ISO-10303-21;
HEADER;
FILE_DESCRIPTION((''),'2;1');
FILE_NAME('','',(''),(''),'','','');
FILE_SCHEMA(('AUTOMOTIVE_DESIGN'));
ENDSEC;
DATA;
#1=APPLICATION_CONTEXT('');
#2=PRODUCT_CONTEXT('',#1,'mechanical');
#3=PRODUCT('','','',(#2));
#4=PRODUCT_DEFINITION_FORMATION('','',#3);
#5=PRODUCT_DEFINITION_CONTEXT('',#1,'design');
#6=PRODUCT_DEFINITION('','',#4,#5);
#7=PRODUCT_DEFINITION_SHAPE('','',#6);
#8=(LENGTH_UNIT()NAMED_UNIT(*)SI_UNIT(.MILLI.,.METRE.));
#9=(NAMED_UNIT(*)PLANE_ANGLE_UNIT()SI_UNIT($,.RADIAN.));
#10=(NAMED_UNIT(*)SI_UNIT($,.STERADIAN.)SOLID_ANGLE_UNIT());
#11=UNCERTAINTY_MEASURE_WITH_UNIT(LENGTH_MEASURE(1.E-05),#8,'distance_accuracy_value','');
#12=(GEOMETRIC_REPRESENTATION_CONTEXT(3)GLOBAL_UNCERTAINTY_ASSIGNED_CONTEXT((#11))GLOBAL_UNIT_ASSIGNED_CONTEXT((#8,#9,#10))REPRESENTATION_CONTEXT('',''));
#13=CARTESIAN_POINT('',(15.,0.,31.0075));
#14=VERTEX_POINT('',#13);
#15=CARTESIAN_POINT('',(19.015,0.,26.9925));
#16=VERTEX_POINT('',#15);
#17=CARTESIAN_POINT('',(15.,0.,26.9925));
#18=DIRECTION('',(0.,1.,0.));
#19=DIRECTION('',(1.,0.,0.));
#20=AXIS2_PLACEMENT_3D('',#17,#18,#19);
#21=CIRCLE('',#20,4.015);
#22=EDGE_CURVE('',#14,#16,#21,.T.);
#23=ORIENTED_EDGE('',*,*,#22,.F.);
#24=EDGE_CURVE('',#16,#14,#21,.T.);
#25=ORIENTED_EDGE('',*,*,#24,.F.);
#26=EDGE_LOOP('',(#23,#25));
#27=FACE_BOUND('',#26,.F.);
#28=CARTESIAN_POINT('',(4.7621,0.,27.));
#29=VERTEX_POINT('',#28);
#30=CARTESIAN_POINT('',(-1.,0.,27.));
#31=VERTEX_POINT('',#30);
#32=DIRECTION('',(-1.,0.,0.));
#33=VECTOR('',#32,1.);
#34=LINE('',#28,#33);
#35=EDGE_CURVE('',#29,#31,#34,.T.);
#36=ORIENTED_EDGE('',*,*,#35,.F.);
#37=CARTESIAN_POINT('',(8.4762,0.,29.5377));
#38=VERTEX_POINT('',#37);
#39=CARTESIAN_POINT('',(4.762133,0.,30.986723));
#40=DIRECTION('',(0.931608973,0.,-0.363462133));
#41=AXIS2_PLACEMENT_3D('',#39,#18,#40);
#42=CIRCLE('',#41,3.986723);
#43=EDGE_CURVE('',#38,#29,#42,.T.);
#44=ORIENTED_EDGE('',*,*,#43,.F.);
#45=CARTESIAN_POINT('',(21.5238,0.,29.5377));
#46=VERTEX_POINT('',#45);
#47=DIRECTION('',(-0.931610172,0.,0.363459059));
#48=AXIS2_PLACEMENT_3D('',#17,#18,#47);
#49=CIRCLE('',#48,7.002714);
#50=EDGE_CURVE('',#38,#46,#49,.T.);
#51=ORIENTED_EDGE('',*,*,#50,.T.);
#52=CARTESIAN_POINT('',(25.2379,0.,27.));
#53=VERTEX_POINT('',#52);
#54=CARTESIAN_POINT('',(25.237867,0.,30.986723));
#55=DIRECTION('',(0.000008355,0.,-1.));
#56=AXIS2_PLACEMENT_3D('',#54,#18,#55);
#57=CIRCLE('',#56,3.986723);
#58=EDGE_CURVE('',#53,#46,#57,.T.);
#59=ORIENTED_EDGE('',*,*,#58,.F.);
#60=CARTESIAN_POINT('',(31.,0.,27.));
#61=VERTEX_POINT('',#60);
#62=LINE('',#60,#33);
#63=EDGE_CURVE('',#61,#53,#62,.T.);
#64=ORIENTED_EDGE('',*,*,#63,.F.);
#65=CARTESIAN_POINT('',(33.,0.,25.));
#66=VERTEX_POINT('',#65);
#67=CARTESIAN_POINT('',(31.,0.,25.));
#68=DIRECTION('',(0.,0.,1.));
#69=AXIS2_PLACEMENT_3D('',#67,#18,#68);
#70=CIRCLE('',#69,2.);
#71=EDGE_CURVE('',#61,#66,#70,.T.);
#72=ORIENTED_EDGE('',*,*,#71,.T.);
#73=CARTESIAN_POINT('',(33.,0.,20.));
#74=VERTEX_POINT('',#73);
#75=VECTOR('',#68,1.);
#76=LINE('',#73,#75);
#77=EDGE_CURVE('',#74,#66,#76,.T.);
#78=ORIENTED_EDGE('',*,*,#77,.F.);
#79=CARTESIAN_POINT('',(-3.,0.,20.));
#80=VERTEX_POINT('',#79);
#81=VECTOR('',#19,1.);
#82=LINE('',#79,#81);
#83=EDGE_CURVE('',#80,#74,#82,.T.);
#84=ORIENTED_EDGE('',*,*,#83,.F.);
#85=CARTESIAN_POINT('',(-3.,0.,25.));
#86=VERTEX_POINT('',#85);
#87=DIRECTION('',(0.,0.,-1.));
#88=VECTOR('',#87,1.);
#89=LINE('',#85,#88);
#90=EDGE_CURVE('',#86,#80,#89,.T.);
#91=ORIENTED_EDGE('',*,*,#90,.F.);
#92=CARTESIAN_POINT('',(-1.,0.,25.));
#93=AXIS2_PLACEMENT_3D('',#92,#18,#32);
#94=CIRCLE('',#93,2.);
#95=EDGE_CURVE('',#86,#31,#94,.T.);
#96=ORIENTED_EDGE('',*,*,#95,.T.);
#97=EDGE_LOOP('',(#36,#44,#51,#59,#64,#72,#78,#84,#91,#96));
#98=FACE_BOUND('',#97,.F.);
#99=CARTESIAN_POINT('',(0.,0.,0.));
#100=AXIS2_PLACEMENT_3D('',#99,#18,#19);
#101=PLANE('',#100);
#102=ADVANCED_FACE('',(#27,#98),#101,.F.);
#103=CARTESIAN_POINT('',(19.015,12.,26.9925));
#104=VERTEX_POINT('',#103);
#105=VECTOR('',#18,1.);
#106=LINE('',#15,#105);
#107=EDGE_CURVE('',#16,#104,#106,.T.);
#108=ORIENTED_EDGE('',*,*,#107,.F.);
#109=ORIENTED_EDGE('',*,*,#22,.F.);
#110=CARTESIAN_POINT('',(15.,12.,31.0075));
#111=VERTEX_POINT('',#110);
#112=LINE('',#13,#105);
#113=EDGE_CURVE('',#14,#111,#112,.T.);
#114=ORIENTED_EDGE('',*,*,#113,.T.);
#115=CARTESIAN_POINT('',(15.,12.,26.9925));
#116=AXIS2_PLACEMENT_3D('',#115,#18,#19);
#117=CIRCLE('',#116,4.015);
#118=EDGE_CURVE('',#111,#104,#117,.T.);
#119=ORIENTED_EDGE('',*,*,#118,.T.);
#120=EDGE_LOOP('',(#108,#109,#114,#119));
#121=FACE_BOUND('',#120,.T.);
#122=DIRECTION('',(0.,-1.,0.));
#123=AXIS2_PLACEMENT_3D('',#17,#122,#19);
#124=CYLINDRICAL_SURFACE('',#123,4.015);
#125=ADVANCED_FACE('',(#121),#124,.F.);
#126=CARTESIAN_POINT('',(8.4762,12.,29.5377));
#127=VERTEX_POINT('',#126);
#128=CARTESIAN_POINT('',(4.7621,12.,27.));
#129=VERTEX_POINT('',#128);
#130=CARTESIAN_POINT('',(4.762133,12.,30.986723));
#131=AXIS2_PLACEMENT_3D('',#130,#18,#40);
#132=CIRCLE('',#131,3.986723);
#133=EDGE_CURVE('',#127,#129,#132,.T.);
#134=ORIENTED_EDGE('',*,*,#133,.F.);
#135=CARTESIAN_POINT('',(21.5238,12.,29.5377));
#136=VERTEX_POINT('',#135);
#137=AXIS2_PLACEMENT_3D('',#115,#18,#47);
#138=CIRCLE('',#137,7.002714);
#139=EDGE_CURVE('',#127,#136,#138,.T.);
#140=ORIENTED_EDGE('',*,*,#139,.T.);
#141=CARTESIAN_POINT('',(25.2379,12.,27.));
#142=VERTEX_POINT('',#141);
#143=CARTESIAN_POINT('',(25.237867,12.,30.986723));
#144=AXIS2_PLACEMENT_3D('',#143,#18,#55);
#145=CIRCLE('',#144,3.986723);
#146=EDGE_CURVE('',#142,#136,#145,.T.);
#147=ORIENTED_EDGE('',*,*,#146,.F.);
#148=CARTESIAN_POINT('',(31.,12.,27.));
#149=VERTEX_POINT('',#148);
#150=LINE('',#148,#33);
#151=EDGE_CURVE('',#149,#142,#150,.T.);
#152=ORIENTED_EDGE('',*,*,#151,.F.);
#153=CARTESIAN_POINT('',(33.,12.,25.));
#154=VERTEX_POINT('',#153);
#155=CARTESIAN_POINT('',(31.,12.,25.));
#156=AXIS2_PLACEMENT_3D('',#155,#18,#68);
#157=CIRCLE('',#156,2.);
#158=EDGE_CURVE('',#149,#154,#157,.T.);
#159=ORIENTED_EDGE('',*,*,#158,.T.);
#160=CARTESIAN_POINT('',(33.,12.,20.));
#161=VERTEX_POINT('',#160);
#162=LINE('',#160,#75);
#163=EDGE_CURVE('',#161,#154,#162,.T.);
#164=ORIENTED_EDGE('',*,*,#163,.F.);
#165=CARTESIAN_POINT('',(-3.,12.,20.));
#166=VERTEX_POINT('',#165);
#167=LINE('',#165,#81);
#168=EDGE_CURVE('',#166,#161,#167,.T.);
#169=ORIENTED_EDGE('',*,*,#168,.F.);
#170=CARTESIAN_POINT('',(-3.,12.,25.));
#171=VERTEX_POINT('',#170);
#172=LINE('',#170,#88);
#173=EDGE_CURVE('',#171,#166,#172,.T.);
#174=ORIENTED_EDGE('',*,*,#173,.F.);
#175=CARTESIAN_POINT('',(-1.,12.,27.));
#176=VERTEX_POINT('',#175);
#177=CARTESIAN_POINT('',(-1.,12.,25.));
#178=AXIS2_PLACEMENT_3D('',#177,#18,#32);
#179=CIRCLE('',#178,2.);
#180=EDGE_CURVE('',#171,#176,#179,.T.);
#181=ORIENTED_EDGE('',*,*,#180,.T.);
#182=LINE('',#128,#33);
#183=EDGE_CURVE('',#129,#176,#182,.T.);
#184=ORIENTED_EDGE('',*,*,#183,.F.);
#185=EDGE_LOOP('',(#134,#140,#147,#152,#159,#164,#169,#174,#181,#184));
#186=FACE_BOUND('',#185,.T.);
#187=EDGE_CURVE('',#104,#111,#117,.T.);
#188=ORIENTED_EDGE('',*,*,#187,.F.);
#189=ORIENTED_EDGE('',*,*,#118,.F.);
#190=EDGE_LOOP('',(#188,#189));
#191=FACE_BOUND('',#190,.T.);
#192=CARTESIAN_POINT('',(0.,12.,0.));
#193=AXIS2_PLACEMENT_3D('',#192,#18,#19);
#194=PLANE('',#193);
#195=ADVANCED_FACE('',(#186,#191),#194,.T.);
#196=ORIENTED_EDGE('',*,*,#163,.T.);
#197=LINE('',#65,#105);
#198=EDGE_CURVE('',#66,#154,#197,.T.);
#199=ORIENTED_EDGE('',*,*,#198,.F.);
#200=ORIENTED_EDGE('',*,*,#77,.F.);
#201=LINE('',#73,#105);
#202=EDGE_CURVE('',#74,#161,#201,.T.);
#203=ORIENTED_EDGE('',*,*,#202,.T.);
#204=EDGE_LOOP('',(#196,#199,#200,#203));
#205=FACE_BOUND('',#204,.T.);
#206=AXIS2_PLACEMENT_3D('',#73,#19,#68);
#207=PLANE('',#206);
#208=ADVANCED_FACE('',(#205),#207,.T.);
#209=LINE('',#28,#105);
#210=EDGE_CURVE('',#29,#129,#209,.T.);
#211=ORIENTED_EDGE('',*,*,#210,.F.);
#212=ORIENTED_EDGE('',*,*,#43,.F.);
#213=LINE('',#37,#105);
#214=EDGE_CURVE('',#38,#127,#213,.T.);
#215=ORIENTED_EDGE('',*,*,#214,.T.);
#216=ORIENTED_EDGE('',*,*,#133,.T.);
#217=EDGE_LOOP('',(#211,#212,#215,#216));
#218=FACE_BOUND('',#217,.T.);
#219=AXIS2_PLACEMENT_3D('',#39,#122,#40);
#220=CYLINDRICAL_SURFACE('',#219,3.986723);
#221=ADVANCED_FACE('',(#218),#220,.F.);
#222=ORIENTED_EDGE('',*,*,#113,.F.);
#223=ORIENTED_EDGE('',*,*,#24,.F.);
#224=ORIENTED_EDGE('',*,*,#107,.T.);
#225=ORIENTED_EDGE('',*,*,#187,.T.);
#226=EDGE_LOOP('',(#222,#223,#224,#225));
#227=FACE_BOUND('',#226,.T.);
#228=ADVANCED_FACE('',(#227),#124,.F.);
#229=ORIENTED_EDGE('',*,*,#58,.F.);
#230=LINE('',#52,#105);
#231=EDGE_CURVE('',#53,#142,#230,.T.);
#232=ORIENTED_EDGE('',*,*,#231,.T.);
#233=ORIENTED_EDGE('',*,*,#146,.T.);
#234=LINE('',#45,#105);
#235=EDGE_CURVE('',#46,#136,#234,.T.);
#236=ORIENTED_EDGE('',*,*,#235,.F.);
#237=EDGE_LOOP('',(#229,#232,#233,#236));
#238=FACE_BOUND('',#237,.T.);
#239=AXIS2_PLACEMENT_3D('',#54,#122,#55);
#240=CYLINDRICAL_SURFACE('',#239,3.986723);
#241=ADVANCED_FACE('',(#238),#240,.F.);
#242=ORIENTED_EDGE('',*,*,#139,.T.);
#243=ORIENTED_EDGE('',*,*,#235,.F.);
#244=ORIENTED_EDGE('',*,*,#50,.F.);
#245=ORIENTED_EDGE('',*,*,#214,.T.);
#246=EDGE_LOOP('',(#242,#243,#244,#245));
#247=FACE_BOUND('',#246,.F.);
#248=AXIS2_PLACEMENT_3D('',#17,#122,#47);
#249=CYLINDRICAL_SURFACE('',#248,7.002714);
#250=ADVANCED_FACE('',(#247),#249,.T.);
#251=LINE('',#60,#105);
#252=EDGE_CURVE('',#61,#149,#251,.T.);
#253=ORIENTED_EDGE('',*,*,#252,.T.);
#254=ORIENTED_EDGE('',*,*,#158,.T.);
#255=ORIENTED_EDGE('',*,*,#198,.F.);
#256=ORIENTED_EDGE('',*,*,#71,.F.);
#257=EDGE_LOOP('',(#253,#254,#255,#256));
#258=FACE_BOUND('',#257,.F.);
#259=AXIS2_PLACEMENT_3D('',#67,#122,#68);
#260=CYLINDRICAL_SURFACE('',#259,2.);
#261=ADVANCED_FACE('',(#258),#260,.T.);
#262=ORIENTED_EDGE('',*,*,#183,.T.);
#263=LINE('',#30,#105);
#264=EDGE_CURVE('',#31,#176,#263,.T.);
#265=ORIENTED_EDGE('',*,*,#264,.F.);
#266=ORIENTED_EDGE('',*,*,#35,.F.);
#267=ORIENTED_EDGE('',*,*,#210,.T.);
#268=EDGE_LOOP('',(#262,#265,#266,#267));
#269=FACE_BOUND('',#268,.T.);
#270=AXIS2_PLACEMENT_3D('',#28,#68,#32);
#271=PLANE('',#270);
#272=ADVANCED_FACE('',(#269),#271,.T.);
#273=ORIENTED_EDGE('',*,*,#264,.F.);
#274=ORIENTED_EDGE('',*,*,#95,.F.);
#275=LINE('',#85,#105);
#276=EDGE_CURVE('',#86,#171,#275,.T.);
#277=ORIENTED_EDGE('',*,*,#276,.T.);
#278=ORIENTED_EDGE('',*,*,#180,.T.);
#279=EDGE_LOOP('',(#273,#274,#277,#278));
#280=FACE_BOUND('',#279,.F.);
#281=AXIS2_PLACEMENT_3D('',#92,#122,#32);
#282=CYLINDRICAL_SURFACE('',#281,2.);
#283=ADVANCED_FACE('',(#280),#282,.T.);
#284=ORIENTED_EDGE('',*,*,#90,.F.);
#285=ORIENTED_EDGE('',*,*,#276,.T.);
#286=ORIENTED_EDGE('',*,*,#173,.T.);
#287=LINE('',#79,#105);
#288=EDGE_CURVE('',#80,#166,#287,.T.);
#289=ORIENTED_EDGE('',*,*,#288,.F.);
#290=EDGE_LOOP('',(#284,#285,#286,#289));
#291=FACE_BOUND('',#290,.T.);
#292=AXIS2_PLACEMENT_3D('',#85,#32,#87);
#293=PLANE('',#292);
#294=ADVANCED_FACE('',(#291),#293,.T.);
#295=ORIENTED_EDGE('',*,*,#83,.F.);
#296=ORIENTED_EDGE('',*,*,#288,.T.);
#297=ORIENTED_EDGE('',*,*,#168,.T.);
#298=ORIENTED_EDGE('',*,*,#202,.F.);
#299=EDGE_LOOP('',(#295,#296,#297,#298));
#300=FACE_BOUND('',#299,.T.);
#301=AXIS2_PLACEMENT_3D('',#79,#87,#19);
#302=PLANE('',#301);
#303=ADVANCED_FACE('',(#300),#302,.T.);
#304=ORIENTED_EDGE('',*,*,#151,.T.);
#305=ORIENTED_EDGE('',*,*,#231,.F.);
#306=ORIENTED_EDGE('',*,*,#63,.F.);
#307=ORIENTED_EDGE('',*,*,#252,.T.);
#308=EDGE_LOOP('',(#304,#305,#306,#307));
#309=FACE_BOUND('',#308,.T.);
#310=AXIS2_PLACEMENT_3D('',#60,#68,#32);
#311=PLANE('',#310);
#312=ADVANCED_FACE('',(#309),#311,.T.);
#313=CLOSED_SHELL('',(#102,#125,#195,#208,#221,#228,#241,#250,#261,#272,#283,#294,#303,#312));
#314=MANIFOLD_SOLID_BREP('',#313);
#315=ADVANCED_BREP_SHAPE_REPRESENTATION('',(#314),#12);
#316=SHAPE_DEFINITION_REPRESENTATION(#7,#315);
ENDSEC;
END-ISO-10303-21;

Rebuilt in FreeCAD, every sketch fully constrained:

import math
import FreeCAD as App
import Part
import Sketcher
from FreeCAD import Vector

doc = App.newDocument("Part")
params = doc.addObject("Spreadsheet::Sheet", "Params")
for row, (alias, value) in enumerate([
    ("sketch1_radius", "2 mm"),
    ("sketch1_diameter", "8.03 mm"),
    ("sketch1_width", "36 mm"),
    ("sketch1_height", "5 mm"),
    ("pad1_length", "12 mm"),
], start=1):
    params.set(f"A{row}", alias)
    params.set(f"B{row}", "=" + value)
    params.setAlias(f"B{row}", alias)

body = doc.addObject("PartDesign::Body", "Body")

# Sketch on XZ plane
sketch1 = body.newObject("Sketcher::SketchObject", "Sketch")
sketch1.AttachmentSupport = (doc.getObject("XZ_Plane"), [""])
sketch1.MapMode = "FlatFace"
sketch1.addGeometry(Part.LineSegment(Vector(-1, 27, 0), Vector(4.7621, 27, 0)), False)
sketch1.addGeometry(Part.ArcOfCircle(Part.Circle(Vector(4.7621, 30.9867, 0), Vector(0, 0, 1), 3.986746), math.radians(-90), math.radians(-21.312492)), False)
sketch1.addGeometry(Part.ArcOfCircle(Part.Circle(Vector(15, 26.9925, 0), Vector(0, 0, 1), 7.002714), math.radians(21.312781), math.radians(158.687219)), False)
sketch1.addGeometry(Part.ArcOfCircle(Part.Circle(Vector(25.2379, 30.9867, 0), Vector(0, 0, 1), 3.9867), math.radians(-158.687508), math.radians(-90)), False)
sketch1.addGeometry(Part.LineSegment(Vector(25.2379, 27, 0), Vector(31, 27, 0)), False)
sketch1.addGeometry(Part.ArcOfCircle(Part.Circle(Vector(31, 25, 0), Vector(0, 0, 1), 2), math.radians(0), math.radians(90)), False)
sketch1.addGeometry(Part.LineSegment(Vector(33, 25, 0), Vector(33, 20, 0)), False)
sketch1.addGeometry(Part.LineSegment(Vector(33, 20, 0), Vector(-3, 20, 0)), False)
sketch1.addGeometry(Part.LineSegment(Vector(-3, 20, 0), Vector(-3, 25, 0)), False)
sketch1.addGeometry(Part.ArcOfCircle(Part.Circle(Vector(-1, 25, 0), Vector(0, 0, 1), 2), math.radians(90), math.radians(180)), False)
sketch1.addGeometry(Part.Circle(Vector(15, 26.9925, 0), Vector(0, 0, 1), 4.015), False)
sketch1.addConstraint(Sketcher.Constraint("Tangent", 0, 2, 1, 1))
sketch1.addConstraint(Sketcher.Constraint("Tangent", 1, 2, 2, 2))
sketch1.addConstraint(Sketcher.Constraint("Tangent", 2, 1, 3, 1))
sketch1.addConstraint(Sketcher.Constraint("Tangent", 3, 2, 4, 1))
sketch1.addConstraint(Sketcher.Constraint("Tangent", 4, 2, 5, 2))
sketch1.addConstraint(Sketcher.Constraint("Tangent", 5, 1, 6, 1))
sketch1.addConstraint(Sketcher.Constraint("Coincident", 6, 2, 7, 1))
sketch1.addConstraint(Sketcher.Constraint("Coincident", 7, 2, 8, 1))
sketch1.addConstraint(Sketcher.Constraint("Tangent", 8, 2, 9, 2))
sketch1.addConstraint(Sketcher.Constraint("Tangent", 9, 1, 0, 1))
sketch1.addConstraint(Sketcher.Constraint("Horizontal", 0))
sketch1.addConstraint(Sketcher.Constraint("Horizontal", 4))
sketch1.addConstraint(Sketcher.Constraint("Vertical", 6))
sketch1.addConstraint(Sketcher.Constraint("Horizontal", 7))
sketch1.addConstraint(Sketcher.Constraint("Vertical", 8))
sketch1.addConstraint(Sketcher.Constraint("Coincident", 10, 3, 2, 3))
sketch1.addConstraint(Sketcher.Constraint("Equal", 1, 3))
sketch1.addConstraint(Sketcher.Constraint("Equal", 5, 9))
sketch1.addConstraint(Sketcher.Constraint("Horizontal", 1, 3, 3, 3))
sketch1.addConstraint(Sketcher.Constraint("Equal", 0, 4))
sketch1.addConstraint(Sketcher.Constraint("Radius", 5, 2.0))
sketch1.addConstraint(Sketcher.Constraint("Diameter", 10, 8.03))
sketch1.addConstraint(Sketcher.Constraint("DistanceX", 7, 2, 7, 1, 36.0))
sketch1.addConstraint(Sketcher.Constraint("DistanceY", 6, 2, 6, 1, 5.0))
sketch1.addConstraint(Sketcher.Constraint("DistanceX", -1, 1, 2, 3, 15.0))
sketch1.addConstraint(Sketcher.Constraint("DistanceY", -1, 1, 5, 3, 25.0))
sketch1.addConstraint(Sketcher.Constraint("Radius", 1, 3.9867))
sketch1.addConstraint(Sketcher.Constraint("Radius", 2, 7.0027))
sketch1.addConstraint(Sketcher.Constraint("DistanceX", 0, 1, 0, 2, 5.762))
sketch1.setExpression("Constraints[20]", "Params.sketch1_radius")
sketch1.setExpression("Constraints[21]", "Params.sketch1_diameter")
sketch1.setExpression("Constraints[22]", "Params.sketch1_width")
sketch1.setExpression("Constraints[23]", "Params.sketch1_height")
pad1 = body.newObject("PartDesign::Pad", "Pad")
pad1.Profile = sketch1
pad1.setExpression("Length", "Params.pad1_length")
pad1.Reversed = True

doc.recompute()
